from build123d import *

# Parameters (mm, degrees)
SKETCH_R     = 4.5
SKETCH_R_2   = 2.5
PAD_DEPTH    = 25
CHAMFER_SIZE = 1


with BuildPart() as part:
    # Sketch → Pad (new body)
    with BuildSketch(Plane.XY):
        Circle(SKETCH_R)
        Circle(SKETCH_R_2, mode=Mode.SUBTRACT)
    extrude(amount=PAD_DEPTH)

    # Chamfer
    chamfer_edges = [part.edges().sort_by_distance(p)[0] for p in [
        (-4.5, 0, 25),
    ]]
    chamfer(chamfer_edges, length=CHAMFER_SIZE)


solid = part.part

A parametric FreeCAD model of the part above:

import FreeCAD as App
import Part
import Sketcher

V = App.Vector


def edges_at(feature, points):
    """Names of the edges that pass closest to the given points."""
    edges = feature.Shape.Edges
    near = lambda p: min(range(len(edges)), key=lambda i: edges[i].distToShape(Part.Vertex(*p))[0])
    return sorted({f"Edge{near(p) + 1}" for p in points})

doc = App.newDocument("Part")
body = doc.addObject("PartDesign::Body", "Body")

# Sketch on XY plane
sketch1 = body.newObject("Sketcher::SketchObject", "Sketch")
sketch1.AttachmentSupport = (doc.getObject("XY_Plane"), [""])
sketch1.MapMode = "FlatFace"
sketch1.addGeometry([
    Part.Circle(V(0, 0, 0), V(0, 0, 1), 4.5),
    Part.Circle(V(0, 0, 0), V(0, 0, 1), 2.5),
], False)
sketch1.addConstraint([
    Sketcher.Constraint("Coincident", 0, 3, -1, 1),
    Sketcher.Constraint("Coincident", 1, 3, -1, 1),
    Sketcher.Constraint("Diameter", 0, 9.0),
    Sketcher.Constraint("Diameter", 1, 5.0),
])
pad1 = body.newObject("PartDesign::Pad", "Pad")
pad1.Profile = sketch1
pad1.Length = 25
doc.recompute()

chamfer = body.newObject("PartDesign::Chamfer", "Chamfer")
chamfer.Base = (pad1, edges_at(pad1, [(-4.5, 0, 25)]))
chamfer.Size = 1

doc.recompute()
